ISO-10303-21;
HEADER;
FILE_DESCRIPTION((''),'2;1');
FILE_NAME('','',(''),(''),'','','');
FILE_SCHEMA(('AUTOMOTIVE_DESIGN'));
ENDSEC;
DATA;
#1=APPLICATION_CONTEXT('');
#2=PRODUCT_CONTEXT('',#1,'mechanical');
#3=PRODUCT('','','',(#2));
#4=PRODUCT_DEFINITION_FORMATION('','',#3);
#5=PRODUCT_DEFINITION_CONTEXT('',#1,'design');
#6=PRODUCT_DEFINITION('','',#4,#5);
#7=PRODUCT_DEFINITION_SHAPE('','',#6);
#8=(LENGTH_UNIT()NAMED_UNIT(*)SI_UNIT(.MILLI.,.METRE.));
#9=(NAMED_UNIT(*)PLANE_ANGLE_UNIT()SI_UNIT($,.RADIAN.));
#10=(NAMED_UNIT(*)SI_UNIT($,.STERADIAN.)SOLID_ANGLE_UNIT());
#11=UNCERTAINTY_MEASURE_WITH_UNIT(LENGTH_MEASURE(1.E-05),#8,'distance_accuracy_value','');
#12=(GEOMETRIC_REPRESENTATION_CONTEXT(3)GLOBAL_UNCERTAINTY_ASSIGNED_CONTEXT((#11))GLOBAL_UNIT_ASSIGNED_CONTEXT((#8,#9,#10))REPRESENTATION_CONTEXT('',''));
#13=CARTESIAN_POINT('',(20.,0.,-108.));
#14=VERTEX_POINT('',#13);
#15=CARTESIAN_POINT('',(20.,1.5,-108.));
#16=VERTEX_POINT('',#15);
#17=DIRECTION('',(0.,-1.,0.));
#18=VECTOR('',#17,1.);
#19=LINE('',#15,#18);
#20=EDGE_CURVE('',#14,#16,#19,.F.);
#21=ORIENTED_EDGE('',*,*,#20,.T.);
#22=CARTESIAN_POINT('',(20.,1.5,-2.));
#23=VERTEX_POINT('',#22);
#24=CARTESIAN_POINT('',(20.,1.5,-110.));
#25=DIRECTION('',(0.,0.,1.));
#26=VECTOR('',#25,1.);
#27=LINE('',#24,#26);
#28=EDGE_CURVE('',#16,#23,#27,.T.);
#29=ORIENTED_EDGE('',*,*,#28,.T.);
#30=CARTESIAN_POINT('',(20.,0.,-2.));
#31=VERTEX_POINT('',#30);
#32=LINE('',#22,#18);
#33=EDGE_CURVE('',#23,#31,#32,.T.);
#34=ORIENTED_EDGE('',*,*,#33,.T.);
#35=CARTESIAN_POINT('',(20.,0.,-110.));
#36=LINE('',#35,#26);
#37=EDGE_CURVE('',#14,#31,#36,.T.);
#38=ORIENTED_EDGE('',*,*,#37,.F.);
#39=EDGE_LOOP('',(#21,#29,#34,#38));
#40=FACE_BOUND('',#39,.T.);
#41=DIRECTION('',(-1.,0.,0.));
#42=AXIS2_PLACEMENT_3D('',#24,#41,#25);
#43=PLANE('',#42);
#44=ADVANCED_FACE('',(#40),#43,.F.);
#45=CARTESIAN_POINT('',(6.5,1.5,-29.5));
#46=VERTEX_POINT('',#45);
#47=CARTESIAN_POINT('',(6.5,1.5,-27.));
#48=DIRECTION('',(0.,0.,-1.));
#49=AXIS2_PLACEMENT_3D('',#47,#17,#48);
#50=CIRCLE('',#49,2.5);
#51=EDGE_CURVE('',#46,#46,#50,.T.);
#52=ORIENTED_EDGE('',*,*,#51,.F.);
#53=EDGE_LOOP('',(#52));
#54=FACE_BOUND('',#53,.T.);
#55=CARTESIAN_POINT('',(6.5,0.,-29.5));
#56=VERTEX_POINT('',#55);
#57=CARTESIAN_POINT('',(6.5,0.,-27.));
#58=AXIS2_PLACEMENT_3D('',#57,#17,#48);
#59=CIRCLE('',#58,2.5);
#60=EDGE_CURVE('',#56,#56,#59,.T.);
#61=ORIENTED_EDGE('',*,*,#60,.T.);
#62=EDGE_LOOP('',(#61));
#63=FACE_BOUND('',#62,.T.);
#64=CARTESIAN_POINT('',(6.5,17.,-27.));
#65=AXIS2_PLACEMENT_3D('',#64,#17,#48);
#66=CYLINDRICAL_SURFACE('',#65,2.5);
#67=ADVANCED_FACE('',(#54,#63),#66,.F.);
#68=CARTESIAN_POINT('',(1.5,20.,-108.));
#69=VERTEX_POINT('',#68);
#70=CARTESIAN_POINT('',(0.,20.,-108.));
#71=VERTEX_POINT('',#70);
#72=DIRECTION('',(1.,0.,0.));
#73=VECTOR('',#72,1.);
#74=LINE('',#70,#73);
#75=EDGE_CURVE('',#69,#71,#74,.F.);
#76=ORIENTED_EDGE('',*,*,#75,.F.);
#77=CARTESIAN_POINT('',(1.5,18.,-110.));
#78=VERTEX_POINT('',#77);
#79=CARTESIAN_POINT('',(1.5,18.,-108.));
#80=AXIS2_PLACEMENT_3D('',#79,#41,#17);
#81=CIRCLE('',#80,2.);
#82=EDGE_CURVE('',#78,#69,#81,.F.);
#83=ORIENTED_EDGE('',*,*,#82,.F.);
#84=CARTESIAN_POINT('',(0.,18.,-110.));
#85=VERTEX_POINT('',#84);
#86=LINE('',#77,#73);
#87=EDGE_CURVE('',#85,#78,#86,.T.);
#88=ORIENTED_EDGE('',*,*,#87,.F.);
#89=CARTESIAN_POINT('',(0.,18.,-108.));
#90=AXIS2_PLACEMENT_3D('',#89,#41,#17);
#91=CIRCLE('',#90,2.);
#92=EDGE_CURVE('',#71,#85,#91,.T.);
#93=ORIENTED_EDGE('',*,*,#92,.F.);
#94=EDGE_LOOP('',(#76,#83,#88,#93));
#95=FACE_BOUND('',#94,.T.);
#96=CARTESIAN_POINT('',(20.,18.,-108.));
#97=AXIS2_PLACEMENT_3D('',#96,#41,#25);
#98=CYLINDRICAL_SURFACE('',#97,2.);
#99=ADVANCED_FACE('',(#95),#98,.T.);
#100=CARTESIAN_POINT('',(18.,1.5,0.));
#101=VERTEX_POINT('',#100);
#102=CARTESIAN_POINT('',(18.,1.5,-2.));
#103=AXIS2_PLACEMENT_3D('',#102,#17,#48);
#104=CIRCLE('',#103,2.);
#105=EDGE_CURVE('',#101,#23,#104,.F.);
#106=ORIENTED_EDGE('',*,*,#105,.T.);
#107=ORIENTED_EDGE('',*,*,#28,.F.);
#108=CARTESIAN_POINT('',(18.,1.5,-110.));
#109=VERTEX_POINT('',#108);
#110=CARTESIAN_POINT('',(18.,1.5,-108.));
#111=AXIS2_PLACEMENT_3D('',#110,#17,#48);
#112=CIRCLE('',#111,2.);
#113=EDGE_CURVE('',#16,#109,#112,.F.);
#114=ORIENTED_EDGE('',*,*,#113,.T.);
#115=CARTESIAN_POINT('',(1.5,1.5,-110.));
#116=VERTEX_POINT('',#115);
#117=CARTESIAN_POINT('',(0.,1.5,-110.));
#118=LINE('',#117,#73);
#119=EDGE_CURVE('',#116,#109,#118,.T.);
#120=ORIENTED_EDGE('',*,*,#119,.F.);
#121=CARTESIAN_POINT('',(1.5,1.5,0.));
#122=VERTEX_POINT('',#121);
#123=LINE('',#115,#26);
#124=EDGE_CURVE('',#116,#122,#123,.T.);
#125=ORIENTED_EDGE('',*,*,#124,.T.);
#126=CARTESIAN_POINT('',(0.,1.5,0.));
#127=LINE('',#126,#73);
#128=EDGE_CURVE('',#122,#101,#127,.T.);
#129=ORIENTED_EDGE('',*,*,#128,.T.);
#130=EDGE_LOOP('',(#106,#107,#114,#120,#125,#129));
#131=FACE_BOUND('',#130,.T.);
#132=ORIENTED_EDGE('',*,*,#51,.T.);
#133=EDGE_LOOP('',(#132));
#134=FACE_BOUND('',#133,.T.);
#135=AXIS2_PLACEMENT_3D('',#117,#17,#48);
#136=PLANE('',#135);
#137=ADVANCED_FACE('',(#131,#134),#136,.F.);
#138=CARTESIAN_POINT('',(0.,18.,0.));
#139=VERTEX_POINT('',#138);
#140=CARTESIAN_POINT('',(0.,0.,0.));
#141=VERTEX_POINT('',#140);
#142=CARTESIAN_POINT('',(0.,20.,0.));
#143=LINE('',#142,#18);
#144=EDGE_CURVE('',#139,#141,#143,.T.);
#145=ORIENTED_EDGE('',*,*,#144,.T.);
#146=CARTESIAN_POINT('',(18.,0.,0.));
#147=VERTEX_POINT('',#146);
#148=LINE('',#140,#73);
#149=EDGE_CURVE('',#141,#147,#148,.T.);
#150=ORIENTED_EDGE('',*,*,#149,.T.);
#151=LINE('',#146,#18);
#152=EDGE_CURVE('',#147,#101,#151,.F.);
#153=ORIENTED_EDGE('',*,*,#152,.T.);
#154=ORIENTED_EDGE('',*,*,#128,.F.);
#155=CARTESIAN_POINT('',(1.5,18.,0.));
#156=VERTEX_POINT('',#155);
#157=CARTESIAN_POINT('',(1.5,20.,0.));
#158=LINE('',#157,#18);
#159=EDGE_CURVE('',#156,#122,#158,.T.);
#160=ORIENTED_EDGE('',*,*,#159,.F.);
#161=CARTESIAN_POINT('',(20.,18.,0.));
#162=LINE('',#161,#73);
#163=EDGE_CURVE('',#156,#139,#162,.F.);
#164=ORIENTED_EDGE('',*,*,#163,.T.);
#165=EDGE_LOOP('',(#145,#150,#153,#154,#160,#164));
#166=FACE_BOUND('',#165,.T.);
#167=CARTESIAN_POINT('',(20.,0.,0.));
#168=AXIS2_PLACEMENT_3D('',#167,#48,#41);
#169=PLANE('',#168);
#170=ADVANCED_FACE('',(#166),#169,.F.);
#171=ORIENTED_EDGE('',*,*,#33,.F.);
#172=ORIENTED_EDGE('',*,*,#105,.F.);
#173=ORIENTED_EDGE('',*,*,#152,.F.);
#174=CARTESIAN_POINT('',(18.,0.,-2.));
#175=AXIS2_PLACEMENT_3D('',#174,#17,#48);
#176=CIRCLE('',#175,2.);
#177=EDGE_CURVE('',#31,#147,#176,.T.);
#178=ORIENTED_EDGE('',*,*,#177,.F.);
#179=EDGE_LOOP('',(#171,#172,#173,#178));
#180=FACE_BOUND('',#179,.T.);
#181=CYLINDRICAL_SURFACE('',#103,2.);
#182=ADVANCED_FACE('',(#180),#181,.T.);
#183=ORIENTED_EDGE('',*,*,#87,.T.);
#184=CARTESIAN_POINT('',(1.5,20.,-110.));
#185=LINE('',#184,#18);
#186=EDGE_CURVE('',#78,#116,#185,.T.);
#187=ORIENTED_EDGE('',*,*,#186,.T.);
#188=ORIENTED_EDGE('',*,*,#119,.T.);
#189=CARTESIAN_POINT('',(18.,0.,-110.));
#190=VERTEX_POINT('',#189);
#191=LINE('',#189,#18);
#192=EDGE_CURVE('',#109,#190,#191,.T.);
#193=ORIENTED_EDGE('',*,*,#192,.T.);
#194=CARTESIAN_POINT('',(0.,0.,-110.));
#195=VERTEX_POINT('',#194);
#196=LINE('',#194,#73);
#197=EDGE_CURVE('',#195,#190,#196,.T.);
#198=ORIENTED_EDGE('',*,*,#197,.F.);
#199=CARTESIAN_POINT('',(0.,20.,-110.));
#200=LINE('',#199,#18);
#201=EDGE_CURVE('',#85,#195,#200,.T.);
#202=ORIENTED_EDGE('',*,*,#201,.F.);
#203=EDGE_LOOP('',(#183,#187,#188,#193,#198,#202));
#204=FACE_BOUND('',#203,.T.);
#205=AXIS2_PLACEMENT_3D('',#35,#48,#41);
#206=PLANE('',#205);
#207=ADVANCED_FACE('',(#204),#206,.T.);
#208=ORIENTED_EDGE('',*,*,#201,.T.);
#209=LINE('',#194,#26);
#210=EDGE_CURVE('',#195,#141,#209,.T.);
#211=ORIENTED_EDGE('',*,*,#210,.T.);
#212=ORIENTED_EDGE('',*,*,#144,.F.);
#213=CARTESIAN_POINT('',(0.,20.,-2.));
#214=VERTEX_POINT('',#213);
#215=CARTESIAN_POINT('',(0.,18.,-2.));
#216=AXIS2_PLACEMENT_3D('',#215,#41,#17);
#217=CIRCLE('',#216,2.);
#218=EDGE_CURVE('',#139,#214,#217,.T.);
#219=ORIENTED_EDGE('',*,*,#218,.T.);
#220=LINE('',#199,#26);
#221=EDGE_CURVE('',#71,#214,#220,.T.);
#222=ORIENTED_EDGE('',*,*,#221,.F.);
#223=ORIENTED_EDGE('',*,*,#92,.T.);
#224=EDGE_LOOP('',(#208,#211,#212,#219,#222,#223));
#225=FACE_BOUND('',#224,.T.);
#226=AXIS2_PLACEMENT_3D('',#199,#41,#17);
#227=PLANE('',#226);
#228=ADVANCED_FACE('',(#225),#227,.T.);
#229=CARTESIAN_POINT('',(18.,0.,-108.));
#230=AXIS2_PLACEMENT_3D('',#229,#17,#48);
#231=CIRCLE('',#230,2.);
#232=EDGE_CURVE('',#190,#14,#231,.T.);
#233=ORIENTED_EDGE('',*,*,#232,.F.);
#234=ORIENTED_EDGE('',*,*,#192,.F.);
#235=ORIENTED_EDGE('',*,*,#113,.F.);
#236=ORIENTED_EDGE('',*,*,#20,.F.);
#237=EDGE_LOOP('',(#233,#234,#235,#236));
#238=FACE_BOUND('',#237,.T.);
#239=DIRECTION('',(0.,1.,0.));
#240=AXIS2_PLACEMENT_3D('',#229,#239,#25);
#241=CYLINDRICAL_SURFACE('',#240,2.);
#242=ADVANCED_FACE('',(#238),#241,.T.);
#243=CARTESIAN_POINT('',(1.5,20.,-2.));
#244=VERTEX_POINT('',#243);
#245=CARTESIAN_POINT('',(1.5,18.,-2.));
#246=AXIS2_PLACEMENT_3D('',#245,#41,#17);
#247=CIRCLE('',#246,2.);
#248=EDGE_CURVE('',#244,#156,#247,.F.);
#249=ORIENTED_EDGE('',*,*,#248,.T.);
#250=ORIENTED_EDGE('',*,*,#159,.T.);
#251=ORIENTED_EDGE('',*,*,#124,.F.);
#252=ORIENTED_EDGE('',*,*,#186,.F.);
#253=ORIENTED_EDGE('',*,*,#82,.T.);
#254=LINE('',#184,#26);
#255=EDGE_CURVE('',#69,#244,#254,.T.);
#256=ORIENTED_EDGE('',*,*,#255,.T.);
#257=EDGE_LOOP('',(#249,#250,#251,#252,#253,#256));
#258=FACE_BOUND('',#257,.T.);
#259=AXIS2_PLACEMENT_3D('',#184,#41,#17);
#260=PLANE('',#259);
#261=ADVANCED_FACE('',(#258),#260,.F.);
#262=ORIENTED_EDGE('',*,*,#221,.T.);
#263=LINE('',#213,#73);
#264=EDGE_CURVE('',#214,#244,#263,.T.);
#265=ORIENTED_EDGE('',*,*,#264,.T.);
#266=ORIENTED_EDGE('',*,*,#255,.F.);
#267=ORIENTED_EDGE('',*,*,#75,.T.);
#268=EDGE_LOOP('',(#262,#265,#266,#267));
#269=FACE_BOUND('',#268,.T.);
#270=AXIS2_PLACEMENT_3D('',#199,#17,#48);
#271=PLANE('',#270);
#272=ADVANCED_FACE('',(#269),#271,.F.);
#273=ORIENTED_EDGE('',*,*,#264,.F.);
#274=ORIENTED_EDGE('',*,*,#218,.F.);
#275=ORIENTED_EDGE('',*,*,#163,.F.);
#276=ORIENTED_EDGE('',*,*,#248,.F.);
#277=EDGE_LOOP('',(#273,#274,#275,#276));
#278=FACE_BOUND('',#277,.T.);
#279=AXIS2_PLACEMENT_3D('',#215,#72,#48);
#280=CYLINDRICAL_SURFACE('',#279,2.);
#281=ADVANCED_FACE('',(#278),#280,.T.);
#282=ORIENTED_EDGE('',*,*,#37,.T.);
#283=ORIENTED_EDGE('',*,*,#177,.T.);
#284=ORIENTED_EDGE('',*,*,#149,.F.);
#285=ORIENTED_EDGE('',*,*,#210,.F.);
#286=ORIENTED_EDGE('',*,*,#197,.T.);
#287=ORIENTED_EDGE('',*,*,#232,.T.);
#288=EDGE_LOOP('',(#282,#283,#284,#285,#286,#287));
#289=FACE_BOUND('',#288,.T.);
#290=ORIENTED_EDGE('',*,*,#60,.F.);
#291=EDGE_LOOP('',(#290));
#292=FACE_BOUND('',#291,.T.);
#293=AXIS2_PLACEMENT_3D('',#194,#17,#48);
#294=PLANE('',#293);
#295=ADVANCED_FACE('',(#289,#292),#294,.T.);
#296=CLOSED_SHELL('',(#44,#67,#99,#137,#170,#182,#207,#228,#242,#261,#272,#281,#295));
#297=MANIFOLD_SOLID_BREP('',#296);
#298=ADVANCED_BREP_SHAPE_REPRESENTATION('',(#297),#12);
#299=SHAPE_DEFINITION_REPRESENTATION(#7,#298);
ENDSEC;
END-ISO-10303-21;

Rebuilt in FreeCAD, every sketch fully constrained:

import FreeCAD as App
import Part
import Sketcher


def edges_at(feature, points):
    """Names of the edges that pass closest to the given points."""
    edges = feature.Shape.Edges
    near = lambda p: min(range(len(edges)), key=lambda i: edges[i].distToShape(Part.Vertex(*p))[0])
    return sorted({f"Edge{near(p) + 1}" for p in points})


def add_polygon(sketch, points):
    """Adds a closed chain of lines whose ends are joined by coincident constraints."""
    first, n = sketch.GeometryCount, len(points)
    for a, b in zip(points, points[1:] + points[:1]):
        sketch.addGeometry(Part.LineSegment(App.Vector(*a, 0), App.Vector(*b, 0)), False)
    for i in range(n):
        sketch.addConstraint(Sketcher.Constraint("Coincident", first + i, 2, first + (i + 1) % n, 1))

doc = App.newDocument("Part")
params = doc.addObject("Spreadsheet::Sheet", "Params")
for row, (alias, value) in enumerate([
    ("sketch1_width", "20 mm"),
    ("sketch1_width2", "18.5 mm"),
    ("pad1_length", "110 mm"),
    ("sketch2_diameter", "5 mm"),
    ("pocket1_length", "17 mm"),
    ("fillet_radius", "2 mm"),
], start=1):
    params.set(f"A{row}", alias)
    params.set(f"B{row}", "=" + value)
    params.setAlias(f"B{row}", alias)

body = doc.addObject("PartDesign::Body", "Body")

sketch1 = body.newObject("Sketcher::SketchObject", "Sketch")
sketch1.AttachmentSupport = (doc.getObject("XY_Plane"), [""])
sketch1.MapMode = "FlatFace"
add_polygon(sketch1, [(0, 20), (0, 0), (20, 0), (20, 1.5), (1.5, 1.5), (1.5, 20)])
sketch1.addConstraint(Sketcher.Constraint("Vertical", 0))
sketch1.addConstraint(Sketcher.Constraint("Horizontal", 1))
sketch1.addConstraint(Sketcher.Constraint("Vertical", 2))
sketch1.addConstraint(Sketcher.Constraint("Horizontal", 3))
sketch1.addConstraint(Sketcher.Constraint("Vertical", 4))
sketch1.addConstraint(Sketcher.Constraint("Horizontal", 5))
sketch1.addConstraint(Sketcher.Constraint("Coincident", 0, 2, -1, 1))
sketch1.addConstraint(Sketcher.Constraint("Equal", 1, 0))
sketch1.addConstraint(Sketcher.Constraint("Equal", 5, 2))
sketch1.addConstraint(Sketcher.Constraint("DistanceX", 1, 1, 1, 2, 20.0))
sketch1.addConstraint(Sketcher.Constraint("DistanceX", 3, 2, 3, 1, 18.5))
sketch1.setExpression("Constraints[15]", "Params.sketch1_width")
sketch1.setExpression("Constraints[16]", "Params.sketch1_width2")
pad1 = body.newObject("PartDesign::Pad", "Pad")
pad1.Profile = sketch1
pad1.setExpression("Length", "Params.pad1_length")
pad1.Reversed = True

sketch2 = body.newObject("Sketcher::SketchObject", "Sketch001")
sketch2.AttachmentSupport = (doc.getObject("XZ_Plane"), [""])
sketch2.MapMode = "FlatFace"
sketch2.addGeometry(Part.Circle(App.Vector(6.5, -27, 0), App.Vector(0, 0, 1), 2.5), False)
sketch2.addConstraint(Sketcher.Constraint("Diameter", 0, 5.0))
sketch2.addConstraint(Sketcher.Constraint("DistanceY", 0, 3, -1, 1, 27.0))
sketch2.addConstraint(Sketcher.Constraint("DistanceX", -1, 1, 0, 3, 6.5))
sketch2.setExpression("Constraints[0]", "Params.sketch2_diameter")
pocket1 = body.newObject("PartDesign::Pocket", "Pocket")
pocket1.Profile = sketch2
pocket1.setExpression("Length", "Params.pocket1_length")
doc.recompute()

fillet = body.newObject("PartDesign::Fillet", "Fillet")
fillet.Base = (pocket1, edges_at(pocket1, [
    (0.75, 20, -110),
    (0.75, 20, 0),
    (20, 0.75, 0),
    (20, 0.75, -110),
]))
fillet.setExpression("Radius", "Params.fillet_radius")

doc.recompute()
